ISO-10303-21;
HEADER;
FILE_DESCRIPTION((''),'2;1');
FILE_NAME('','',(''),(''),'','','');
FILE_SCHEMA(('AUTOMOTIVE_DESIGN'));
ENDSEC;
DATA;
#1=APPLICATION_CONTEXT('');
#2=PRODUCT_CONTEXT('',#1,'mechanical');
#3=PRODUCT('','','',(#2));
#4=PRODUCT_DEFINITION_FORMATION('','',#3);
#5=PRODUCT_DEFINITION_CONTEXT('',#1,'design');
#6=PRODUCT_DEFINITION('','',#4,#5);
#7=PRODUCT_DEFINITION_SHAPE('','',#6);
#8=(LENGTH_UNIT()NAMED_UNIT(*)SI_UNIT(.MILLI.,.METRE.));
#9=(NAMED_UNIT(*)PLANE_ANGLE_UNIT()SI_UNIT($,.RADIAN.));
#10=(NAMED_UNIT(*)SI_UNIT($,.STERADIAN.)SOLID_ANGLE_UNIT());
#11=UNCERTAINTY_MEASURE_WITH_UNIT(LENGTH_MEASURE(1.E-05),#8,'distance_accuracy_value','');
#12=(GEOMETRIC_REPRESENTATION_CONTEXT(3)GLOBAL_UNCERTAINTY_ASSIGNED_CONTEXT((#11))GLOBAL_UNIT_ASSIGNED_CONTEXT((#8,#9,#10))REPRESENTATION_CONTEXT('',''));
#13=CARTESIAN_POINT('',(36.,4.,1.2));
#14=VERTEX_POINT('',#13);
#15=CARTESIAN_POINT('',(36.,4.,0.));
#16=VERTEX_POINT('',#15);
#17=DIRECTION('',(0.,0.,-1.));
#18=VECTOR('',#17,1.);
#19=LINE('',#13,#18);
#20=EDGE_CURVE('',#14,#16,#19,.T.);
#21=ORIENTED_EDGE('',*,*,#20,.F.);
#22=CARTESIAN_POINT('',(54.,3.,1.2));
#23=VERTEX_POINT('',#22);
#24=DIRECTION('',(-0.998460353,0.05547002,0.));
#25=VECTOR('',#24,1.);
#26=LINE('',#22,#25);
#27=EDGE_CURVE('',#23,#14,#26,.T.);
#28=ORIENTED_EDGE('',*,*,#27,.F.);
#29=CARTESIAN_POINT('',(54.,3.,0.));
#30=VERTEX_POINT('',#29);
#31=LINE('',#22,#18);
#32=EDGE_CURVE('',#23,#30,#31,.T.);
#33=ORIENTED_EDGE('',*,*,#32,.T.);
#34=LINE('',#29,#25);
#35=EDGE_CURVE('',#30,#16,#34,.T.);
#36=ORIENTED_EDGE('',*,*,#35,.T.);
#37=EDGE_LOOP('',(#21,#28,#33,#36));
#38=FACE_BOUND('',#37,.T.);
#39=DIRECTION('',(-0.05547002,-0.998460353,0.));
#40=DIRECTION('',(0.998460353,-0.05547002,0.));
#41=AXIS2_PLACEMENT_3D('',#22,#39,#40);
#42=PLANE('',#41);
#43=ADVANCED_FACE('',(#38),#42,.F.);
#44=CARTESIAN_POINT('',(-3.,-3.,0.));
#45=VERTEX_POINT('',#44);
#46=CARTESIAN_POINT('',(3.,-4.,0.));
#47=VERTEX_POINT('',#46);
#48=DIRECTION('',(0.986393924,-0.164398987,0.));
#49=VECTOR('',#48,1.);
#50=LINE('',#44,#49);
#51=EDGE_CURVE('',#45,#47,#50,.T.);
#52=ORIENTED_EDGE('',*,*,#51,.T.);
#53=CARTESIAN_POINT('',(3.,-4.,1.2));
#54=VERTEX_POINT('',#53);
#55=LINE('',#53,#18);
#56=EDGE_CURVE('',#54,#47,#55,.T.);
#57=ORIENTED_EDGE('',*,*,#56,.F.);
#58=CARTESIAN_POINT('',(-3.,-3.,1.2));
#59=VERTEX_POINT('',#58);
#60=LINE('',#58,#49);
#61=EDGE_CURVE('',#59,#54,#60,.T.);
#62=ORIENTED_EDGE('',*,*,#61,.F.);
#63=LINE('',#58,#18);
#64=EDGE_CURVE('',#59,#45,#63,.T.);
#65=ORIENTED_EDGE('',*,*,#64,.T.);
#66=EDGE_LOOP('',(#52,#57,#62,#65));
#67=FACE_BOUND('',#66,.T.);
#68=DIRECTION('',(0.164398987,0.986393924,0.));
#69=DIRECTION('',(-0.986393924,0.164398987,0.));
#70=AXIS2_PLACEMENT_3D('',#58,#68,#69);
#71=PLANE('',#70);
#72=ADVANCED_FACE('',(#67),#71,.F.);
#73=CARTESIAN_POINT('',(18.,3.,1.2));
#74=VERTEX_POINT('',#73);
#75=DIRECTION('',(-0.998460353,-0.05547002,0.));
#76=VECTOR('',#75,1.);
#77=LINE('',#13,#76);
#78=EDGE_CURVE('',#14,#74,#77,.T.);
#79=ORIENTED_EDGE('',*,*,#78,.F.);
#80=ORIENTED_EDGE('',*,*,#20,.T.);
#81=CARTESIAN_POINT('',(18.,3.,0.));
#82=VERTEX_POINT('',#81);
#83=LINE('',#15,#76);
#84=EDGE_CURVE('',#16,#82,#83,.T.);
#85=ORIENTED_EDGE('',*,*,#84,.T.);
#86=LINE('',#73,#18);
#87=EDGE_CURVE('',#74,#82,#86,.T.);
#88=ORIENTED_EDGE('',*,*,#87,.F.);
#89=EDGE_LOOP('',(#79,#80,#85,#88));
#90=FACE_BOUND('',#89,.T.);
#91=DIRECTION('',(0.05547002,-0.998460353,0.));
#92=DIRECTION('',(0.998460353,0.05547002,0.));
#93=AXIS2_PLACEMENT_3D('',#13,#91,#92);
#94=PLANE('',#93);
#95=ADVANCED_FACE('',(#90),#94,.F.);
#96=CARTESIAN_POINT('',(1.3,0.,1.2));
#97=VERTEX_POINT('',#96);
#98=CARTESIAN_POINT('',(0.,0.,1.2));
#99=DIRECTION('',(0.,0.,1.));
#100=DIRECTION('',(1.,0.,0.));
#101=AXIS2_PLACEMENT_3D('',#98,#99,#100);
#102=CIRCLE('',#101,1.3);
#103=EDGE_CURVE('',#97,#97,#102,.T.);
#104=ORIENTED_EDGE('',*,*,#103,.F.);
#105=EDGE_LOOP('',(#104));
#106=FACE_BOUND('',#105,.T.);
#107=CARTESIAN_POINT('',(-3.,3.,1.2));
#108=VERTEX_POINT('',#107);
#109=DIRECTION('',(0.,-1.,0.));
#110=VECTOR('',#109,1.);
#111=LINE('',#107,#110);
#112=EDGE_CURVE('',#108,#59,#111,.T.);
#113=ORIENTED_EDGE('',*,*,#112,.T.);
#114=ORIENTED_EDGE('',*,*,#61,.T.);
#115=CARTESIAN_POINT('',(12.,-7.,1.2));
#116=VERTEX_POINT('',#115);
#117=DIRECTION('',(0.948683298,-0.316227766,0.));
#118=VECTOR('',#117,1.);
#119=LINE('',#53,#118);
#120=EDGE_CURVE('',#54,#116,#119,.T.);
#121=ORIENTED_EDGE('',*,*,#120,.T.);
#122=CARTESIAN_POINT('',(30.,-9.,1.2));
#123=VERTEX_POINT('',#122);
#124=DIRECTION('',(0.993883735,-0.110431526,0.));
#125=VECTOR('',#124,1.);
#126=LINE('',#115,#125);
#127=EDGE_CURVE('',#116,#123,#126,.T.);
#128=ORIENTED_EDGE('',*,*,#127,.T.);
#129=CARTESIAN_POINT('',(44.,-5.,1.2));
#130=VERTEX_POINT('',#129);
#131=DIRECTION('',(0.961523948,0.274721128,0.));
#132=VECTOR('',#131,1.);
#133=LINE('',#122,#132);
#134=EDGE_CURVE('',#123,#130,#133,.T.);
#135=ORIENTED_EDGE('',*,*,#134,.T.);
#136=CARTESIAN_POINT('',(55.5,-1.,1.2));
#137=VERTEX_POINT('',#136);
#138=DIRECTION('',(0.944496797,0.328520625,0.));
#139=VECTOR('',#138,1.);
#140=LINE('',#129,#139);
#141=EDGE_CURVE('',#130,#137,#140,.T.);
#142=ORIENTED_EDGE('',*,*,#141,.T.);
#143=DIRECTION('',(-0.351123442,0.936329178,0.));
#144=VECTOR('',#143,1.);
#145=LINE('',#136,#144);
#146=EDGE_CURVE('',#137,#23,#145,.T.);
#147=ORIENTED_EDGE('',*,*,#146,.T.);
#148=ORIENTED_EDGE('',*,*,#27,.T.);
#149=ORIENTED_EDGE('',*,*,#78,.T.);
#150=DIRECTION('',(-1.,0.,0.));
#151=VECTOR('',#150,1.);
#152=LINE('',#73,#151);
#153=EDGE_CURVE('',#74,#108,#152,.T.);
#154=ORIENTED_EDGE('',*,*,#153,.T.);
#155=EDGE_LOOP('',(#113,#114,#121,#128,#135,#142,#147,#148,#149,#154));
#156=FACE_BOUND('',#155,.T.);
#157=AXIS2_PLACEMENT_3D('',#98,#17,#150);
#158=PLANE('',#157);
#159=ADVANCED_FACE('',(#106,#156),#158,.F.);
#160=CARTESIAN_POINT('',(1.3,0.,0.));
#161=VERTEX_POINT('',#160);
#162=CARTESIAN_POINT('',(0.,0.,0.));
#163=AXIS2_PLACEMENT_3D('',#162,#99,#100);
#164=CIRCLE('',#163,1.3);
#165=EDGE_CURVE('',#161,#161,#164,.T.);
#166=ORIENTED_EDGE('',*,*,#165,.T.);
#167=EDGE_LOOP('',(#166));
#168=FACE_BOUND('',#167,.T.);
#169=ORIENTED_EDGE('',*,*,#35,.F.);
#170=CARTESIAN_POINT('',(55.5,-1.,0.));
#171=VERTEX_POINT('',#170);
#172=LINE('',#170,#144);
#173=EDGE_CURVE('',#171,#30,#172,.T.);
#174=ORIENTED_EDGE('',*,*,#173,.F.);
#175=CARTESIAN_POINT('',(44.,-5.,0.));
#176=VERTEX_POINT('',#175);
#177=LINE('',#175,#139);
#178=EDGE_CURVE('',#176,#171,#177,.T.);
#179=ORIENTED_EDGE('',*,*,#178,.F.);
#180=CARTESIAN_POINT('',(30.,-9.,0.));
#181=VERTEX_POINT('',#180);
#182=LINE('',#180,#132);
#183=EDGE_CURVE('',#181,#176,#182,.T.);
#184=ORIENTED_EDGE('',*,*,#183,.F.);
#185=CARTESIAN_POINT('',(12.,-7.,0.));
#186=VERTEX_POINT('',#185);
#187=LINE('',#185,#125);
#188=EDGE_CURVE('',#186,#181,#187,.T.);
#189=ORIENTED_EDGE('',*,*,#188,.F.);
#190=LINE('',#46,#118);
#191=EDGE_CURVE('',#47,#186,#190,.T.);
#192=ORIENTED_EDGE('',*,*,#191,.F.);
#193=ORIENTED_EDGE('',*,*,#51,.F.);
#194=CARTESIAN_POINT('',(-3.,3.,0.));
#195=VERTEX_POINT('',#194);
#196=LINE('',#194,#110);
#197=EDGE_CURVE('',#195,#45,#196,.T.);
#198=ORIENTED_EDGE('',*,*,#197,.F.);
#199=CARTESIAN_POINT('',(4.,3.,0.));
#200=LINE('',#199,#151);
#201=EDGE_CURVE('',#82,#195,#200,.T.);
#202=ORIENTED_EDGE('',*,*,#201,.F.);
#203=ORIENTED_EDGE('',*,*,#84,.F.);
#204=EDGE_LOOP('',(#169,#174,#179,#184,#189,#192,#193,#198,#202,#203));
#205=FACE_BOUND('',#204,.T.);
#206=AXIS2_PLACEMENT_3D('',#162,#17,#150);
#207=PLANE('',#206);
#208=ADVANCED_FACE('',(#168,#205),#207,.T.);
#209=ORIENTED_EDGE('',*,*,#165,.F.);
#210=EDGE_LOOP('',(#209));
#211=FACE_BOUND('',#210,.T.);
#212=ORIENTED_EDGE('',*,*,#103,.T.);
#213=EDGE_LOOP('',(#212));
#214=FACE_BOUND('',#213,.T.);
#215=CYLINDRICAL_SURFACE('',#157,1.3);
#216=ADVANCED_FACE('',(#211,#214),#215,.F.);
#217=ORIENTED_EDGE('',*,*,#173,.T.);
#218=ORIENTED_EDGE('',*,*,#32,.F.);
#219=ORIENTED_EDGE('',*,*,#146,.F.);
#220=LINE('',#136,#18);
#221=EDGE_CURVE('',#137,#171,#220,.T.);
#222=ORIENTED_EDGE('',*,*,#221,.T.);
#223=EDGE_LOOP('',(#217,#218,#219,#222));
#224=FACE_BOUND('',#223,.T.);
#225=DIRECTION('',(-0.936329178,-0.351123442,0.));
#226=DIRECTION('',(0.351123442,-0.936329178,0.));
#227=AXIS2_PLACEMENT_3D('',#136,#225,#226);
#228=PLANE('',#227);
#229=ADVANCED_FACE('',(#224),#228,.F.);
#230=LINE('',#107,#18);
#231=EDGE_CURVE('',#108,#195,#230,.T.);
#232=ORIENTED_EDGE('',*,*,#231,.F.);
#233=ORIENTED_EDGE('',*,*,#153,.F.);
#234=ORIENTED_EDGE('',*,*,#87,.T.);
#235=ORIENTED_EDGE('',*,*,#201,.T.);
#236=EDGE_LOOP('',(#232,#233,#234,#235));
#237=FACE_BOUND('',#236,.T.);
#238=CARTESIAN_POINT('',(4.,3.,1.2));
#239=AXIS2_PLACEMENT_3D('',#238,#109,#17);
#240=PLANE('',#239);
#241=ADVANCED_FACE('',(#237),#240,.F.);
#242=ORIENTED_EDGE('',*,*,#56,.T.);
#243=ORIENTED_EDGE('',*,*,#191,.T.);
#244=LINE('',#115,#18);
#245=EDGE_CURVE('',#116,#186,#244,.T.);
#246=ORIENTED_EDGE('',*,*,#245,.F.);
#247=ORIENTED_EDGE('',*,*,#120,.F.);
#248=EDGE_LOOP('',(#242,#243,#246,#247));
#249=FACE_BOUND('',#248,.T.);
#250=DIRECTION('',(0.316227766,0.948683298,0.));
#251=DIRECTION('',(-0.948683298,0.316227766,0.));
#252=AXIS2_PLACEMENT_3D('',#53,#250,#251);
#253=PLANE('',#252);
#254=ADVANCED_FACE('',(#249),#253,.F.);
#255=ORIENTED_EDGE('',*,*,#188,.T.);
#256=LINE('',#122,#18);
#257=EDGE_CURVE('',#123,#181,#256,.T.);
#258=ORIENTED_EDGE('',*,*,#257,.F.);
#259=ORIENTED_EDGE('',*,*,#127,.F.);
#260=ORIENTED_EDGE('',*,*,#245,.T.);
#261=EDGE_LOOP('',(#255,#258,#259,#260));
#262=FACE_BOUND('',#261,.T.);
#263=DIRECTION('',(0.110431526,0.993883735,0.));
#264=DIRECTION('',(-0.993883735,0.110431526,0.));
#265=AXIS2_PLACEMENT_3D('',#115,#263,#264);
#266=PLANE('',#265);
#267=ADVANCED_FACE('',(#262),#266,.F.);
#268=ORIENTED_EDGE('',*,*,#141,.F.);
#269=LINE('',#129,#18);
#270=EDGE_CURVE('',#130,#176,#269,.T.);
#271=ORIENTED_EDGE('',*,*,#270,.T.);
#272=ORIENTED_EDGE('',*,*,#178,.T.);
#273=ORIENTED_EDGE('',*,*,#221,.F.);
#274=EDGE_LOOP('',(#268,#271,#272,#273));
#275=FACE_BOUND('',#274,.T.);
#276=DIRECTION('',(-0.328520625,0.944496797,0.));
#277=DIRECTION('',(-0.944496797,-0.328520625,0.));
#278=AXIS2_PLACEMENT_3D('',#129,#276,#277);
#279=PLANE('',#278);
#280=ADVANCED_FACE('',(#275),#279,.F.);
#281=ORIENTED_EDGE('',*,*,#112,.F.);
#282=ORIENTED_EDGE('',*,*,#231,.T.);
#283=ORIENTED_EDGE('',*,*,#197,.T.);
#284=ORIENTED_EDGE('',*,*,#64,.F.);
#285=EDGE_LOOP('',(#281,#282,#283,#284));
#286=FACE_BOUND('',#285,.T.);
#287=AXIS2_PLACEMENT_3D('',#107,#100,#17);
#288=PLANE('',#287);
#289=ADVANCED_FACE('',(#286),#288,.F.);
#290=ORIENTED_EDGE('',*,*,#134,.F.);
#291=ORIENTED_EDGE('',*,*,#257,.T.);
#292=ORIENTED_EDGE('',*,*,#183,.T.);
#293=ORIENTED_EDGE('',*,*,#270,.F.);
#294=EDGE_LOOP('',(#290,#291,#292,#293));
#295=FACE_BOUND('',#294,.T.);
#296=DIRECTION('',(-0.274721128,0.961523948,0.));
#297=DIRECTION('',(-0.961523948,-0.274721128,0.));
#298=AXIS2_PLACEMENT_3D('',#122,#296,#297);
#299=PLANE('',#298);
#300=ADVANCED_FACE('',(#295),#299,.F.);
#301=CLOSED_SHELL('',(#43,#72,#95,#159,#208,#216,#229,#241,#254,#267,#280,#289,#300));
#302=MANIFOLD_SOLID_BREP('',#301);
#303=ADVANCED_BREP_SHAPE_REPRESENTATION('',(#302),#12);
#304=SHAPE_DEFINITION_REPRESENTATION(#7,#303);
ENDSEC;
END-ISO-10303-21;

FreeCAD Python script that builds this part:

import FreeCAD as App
import Part
import Sketcher

V = App.Vector
Q = App.Units.Quantity


def add_polygon(sketch, points):
    """Adds a closed chain of lines whose ends are joined by coincident constraints."""
    first, n = sketch.GeometryCount, len(points)
    for a, b in zip(points, points[1:] + points[:1]):
        sketch.addGeometry(Part.LineSegment(App.Vector(*a, 0), App.Vector(*b, 0)), False)
    for i in range(n):
        sketch.addConstraint(Sketcher.Constraint("Coincident", first + i, 2, first + (i + 1) % n, 1))

doc = App.newDocument("Part")
params = doc.addObject("Spreadsheet::Sheet", "Params")
for row, (alias, value) in enumerate([
    ("sketch1_diameter", "2.6 mm"),
    ("sketch1_width", "21 mm"),
    ("sketch1_height", "6 mm"),
    ("pad1_length", "1.2 mm"),
], start=1):
    params.set(f"A{row}", alias)
    params.set(f"B{row}", "=" + value)
    params.setAlias(f"B{row}", alias)

body = doc.addObject("PartDesign::Body", "Body")

sketch1 = body.newObject("Sketcher::SketchObject", "Sketch")
sketch1.AttachmentSupport = (doc.getObject("XY_Plane"), [""])
sketch1.MapMode = "FlatFace"
add_polygon(sketch1, [(-3, -3), (3, -4), (12, -7), (30, -9), (44, -5), (55.5, -1), (54, 3), (36, 4), (18, 3), (-3, 3)])
sketch1.addGeometry(Part.Circle(V(0, 0, 0), V(0, 0, 1), 1.3), False)
sketch1.addConstraint([
    Sketcher.Constraint("Horizontal", 8),
    Sketcher.Constraint("Vertical", 9),
    Sketcher.Constraint("Coincident", 10, 3, -1, 1),
    Sketcher.Constraint("Horizontal", 5, 2, 7, 2),
    Sketcher.Constraint("Equal", 6, 7),
    Sketcher.Constraint("Diameter", 10, Q("2.6 mm")),
    Sketcher.Constraint("DistanceX", 8, 2, 8, 1, Q("21 mm")),
    Sketcher.Constraint("DistanceY", 9, 2, 9, 1, Q("6 mm")),
    Sketcher.Constraint("DistanceX", -1, 1, 0, 2, Q("3 mm")),
    Sketcher.Constraint("DistanceY", 0, 2, -1, 1, Q("4 mm")),
    Sketcher.Constraint("DistanceX", -1, 1, 1, 2, Q("12 mm")),
    Sketcher.Constraint("DistanceY", 1, 2, -1, 1, Q("7 mm")),
    Sketcher.Constraint("DistanceX", -1, 1, 2, 2, Q("30 mm")),
    Sketcher.Constraint("DistanceY", 2, 2, -1, 1, Q("9 mm")),
    Sketcher.Constraint("DistanceX", -1, 1, 3, 2, Q("44 mm")),
    Sketcher.Constraint("DistanceY", 3, 2, -1, 1, Q("5 mm")),
    Sketcher.Constraint("DistanceY", 4, 2, -1, 1, Q("1 mm")),
    Sketcher.Constraint("DistanceX", -1, 1, 5, 2, Q("54 mm")),
    Sketcher.Constraint("DistanceY", -1, 1, 5, 2, Q("3 mm")),
    Sketcher.Constraint("DistanceX", -1, 1, 6, 2, Q("36 mm")),
    Sketcher.Constraint("DistanceY", -1, 1, 6, 2, Q("4 mm")),
    Sketcher.Constraint("DistanceX", -1, 1, 4, 2, Q("55.5 mm")),
])
sketch1.setExpression("Constraints[15]", "Params.sketch1_diameter")
sketch1.setExpression("Constraints[16]", "Params.sketch1_width")
sketch1.setExpression("Constraints[17]", "Params.sketch1_height")
pad1 = body.newObject("PartDesign::Pad", "Pad")
pad1.Profile = sketch1
pad1.setExpression("Length", "Params.pad1_length")

doc.recompute()
